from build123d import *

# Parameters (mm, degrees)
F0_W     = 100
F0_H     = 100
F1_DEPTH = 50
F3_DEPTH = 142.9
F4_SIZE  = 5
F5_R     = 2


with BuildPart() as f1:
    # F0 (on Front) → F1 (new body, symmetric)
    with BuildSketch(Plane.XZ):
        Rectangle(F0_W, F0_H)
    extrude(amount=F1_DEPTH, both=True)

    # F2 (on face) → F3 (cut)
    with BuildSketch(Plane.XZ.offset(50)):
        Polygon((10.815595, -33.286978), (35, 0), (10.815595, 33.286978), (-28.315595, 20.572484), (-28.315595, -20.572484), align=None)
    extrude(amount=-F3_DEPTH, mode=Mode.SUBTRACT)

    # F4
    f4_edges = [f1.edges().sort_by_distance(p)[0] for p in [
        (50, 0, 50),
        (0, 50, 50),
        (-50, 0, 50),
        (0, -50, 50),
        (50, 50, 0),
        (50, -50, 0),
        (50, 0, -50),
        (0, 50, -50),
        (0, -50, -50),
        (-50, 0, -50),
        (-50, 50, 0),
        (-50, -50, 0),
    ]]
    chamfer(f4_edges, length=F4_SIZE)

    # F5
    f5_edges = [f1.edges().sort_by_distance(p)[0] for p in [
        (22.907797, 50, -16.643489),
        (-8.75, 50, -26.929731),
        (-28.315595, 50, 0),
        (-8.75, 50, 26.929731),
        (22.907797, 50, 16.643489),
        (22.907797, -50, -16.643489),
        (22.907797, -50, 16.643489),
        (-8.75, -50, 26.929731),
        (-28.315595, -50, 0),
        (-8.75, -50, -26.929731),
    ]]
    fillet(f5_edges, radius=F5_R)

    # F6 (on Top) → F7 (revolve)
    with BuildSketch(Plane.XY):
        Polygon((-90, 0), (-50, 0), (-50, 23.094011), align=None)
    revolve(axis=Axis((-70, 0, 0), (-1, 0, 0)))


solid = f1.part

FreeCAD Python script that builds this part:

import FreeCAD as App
import Part
import Sketcher
Q = App.Units.Quantity


def edges_at(feature, points):
    """Names of the edges that pass closest to the given points."""
    edges = feature.Shape.Edges
    near = lambda p: min(range(len(edges)), key=lambda i: edges[i].distToShape(Part.Vertex(*p))[0])
    return sorted({f"Edge{near(p) + 1}" for p in points})

doc = App.newDocument("Part")
params = doc.addObject("Spreadsheet::Sheet", "Params")
for row, (alias, value) in enumerate([
    ("sketch1_width", "100 mm"),
    ("pad1_length", "100 mm"),
    ("pocket1_length", "142.9 mm"),
    ("chamfer_size", "5 mm"),
    ("fillet_radius", "2 mm"),
    ("sketch3_width", "40 mm"),
    ("revolution_angle", "360 deg"),
], start=1):
    params.set(f"A{row}", alias)
    params.set(f"B{row}", "=" + value)
    params.setAlias(f"B{row}", alias)

body = doc.addObject("PartDesign::Body", "Body")

sketch1 = body.newObject("Sketcher::SketchObject", "Sketch")
sketch1.AttachmentSupport = (doc.getObject("XZ_Plane"), [""])
sketch1.MapMode = "FlatFace"
sketch1.addGeometry([
    Part.LineSegment(App.Vector(-50, 50, 0), App.Vector(-50, -50, 0)),
    Part.LineSegment(App.Vector(-50, -50, 0), App.Vector(50, -50, 0)),
    Part.LineSegment(App.Vector(50, -50, 0), App.Vector(50, 50, 0)),
    Part.LineSegment(App.Vector(50, 50, 0), App.Vector(-50, 50, 0)),
], False)
sketch1.addConstraint([
    Sketcher.Constraint("Coincident", 0, 2, 1, 1),
    Sketcher.Constraint("Coincident", 1, 2, 2, 1),
    Sketcher.Constraint("Coincident", 2, 2, 3, 1),
    Sketcher.Constraint("Coincident", 3, 2, 0, 1),
    Sketcher.Constraint("Vertical", 0),
    Sketcher.Constraint("Horizontal", 1),
    Sketcher.Constraint("Vertical", 2),
    Sketcher.Constraint("Horizontal", 3),
    Sketcher.Constraint("Symmetric", 0, 2, 2, 2, -1, 1),
    Sketcher.Constraint("Equal", 3, 0),
    Sketcher.Constraint("DistanceX", 1, 1, 1, 2, 100.0),
])
sketch1.setExpression("Constraints[10]", "Params.sketch1_width")
pad1 = body.newObject("PartDesign::Pad", "Pad")
pad1.Profile = sketch1
pad1.setExpression("Length", "Params.pad1_length")
pad1.Midplane = True

sketch2 = body.newObject("Sketcher::SketchObject", "Sketch001")
sketch2.AttachmentSupport = (doc.getObject("XZ_Plane"), [""])
sketch2.MapMode = "FlatFace"
sketch2.AttachmentOffset = App.Placement(App.Vector(0, 0, 50), App.Rotation())
sketch2.addGeometry([
    Part.LineSegment(App.Vector(11, -33, 0), App.Vector(35, 0, 0)),
    Part.LineSegment(App.Vector(35, 0, 0), App.Vector(11, 33, 0)),
    Part.LineSegment(App.Vector(11, 33, 0), App.Vector(-28, 21, 0)),
    Part.LineSegment(App.Vector(-28, 21, 0), App.Vector(-28, -21, 0)),
    Part.LineSegment(App.Vector(-28, -21, 0), App.Vector(11, -33, 0)),
], False)
sketch2.addConstraint([
    Sketcher.Constraint("Coincident", 0, 2, 1, 1),
    Sketcher.Constraint("Coincident", 1, 2, 2, 1),
    Sketcher.Constraint("Coincident", 2, 2, 3, 1),
    Sketcher.Constraint("Coincident", 3, 2, 4, 1),
    Sketcher.Constraint("Coincident", 4, 2, 0, 1),
    Sketcher.Constraint("Vertical", 3),
    Sketcher.Constraint("Symmetric", 1, 2, 4, 2, -1),
    Sketcher.Constraint("PointOnObject", 0, 2, -1),
    Sketcher.Constraint("Equal", 1, 2),
    Sketcher.Constraint("Equal", 2, 4),
    Sketcher.Constraint("Angle", 0, Q("54 deg")),
    Sketcher.Constraint("Angle", 2, Q("-162 deg")),
    Sketcher.Constraint("DistanceX", -1, 1, 0, 2, 35.0),
    Sketcher.Constraint("DistanceY", 3, 2, 3, 1, 41.144968),
])
pocket1 = body.newObject("PartDesign::Pocket", "Pocket")
pocket1.Profile = sketch2
pocket1.setExpression("Length", "Params.pocket1_length")
doc.recompute()

chamfer = body.newObject("PartDesign::Chamfer", "Chamfer")
chamfer.Base = (pocket1, edges_at(pocket1, [
    (50, 0, 50),
    (0, 50, 50),
    (-50, 0, 50),
    (0, -50, 50),
    (50, 50, 0),
    (50, -50, 0),
    (50, 0, -50),
    (0, 50, -50),
    (0, -50, -50),
    (-50, 0, -50),
    (-50, 50, 0),
    (-50, -50, 0),
]))
chamfer.setExpression("Size", "Params.chamfer_size")
doc.recompute()

fillet = body.newObject("PartDesign::Fillet", "Fillet")
fillet.Base = (chamfer, edges_at(chamfer, [
    (22.908, 50, -16.643),
    (-8.75, 50, -26.93),
    (-28.316, 50, 0),
    (-8.75, 50, 26.93),
    (22.908, 50, 16.643),
    (22.908, -50, -16.643),
    (22.908, -50, 16.643),
    (-8.75, -50, 26.93),
    (-28.316, -50, 0),
    (-8.75, -50, -26.93),
]))
fillet.setExpression("Radius", "Params.fillet_radius")

sketch3 = body.newObject("Sketcher::SketchObject", "Sketch002")
sketch3.AttachmentSupport = (doc.getObject("XY_Plane"), [""])
sketch3.MapMode = "FlatFace"
sketch3.addGeometry([
    Part.LineSegment(App.Vector(-90, 0, 0), App.Vector(-50, 0, 0)),
    Part.LineSegment(App.Vector(-50, 0, 0), App.Vector(-50, 23, 0)),
    Part.LineSegment(App.Vector(-50, 23, 0), App.Vector(-90, 0, 0)),
], False)
sketch3.addConstraint([
    Sketcher.Constraint("Coincident", 0, 2, 1, 1),
    Sketcher.Constraint("Coincident", 1, 2, 2, 1),
    Sketcher.Constraint("Coincident", 2, 2, 0, 1),
    Sketcher.Constraint("Horizontal", 0),
    Sketcher.Constraint("Vertical", 1),
    Sketcher.Constraint("PointOnObject", 0, 2, -1),
    Sketcher.Constraint("DistanceX", 0, 1, 0, 2, 40.0),
    Sketcher.Constraint("Angle", 2, Q("-150 deg")),
    Sketcher.Constraint("DistanceX", 0, 2, -1, 1, 50.0),
])
sketch3.setExpression("Constraints[6]", "Params.sketch3_width")
revolution = body.newObject("PartDesign::Revolution", "Revolution")
revolution.Profile = sketch3
revolution.ReferenceAxis = (sketch3, ["H_Axis"])
revolution.setExpression("Angle", "Params.revolution_angle")

doc.recompute()
